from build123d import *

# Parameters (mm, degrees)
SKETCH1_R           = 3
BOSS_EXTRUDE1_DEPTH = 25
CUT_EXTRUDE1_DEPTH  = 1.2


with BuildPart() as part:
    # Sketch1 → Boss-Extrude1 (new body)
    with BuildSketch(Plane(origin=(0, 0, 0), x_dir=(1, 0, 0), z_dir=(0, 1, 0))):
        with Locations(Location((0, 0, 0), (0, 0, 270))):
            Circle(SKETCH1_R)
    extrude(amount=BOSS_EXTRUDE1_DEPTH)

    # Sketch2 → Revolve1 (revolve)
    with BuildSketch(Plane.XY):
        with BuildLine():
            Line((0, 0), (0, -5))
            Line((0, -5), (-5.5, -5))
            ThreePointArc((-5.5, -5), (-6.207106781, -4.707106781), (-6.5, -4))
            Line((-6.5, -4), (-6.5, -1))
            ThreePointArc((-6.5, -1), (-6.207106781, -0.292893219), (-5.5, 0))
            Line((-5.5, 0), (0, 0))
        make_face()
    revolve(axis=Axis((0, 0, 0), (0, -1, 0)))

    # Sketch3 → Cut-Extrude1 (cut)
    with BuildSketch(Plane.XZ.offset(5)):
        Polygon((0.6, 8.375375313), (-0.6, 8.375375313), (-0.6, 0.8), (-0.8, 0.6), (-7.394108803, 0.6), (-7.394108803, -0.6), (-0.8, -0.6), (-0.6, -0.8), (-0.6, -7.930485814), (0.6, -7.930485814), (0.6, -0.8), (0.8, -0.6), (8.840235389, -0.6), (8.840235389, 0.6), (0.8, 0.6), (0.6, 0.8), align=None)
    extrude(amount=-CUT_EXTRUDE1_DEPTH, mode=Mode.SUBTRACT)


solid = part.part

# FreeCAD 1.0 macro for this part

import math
import FreeCAD as App
import Part
import Sketcher

V = App.Vector

doc = App.newDocument("Part")
body = doc.addObject("PartDesign::Body", "Body")

sketch1 = doc.addObject("Sketcher::SketchObject", "Sketch")
body.addObject(sketch1)
sketch1.AttachmentSupport = (doc.XZ_Plane, [""])
sketch1.MapMode = "FlatFace"
sketch1.addGeometry(Part.Circle(V(0, 0, 0), V(0, 0, 1), 3), False)
sketch1.addConstraint([
    Sketcher.Constraint("Coincident", 0, 3, -1, 1),
    Sketcher.Constraint("Diameter", 0, 6.0),
])
pad1 = doc.addObject("PartDesign::Pad", "Pad")
body.addObject(pad1)
pad1.Profile = sketch1
pad1.Length = 25
pad1.Reversed = True

sketch2 = doc.addObject("Sketcher::SketchObject", "Sketch001")
body.addObject(sketch2)
sketch2.AttachmentSupport = (doc.XY_Plane, [""])
sketch2.MapMode = "FlatFace"
sketch2.addGeometry([
    Part.LineSegment(V(0, -5, 0), V(0, 0, 0)),
    Part.LineSegment(V(0, 0, 0), V(-5.5, 0, 0)),
    Part.ArcOfCircle(Part.Circle(V(-5.5, -1, 0), V(0, 0, 1), 1), math.radians(90), math.radians(180)),
    Part.LineSegment(V(-6.5, -1, 0), V(-6.5, -4, 0)),
    Part.ArcOfCircle(Part.Circle(V(-5.5, -4, 0), V(0, 0, 1), 1), math.radians(-180), math.radians(-90)),
    Part.LineSegment(V(-5.5, -5, 0), V(0, -5, 0)),
], False)
sketch2.addConstraint([
    Sketcher.Constraint("Coincident", 0, 2, 1, 1),
    Sketcher.Constraint("Tangent", 1, 2, 2, 1),
    Sketcher.Constraint("Tangent", 2, 2, 3, 1),
    Sketcher.Constraint("Tangent", 3, 2, 4, 1),
    Sketcher.Constraint("Tangent", 4, 2, 5, 1),
    Sketcher.Constraint("Coincident", 5, 2, 0, 1),
    Sketcher.Constraint("Vertical", 0),
    Sketcher.Constraint("Horizontal", 1),
    Sketcher.Constraint("Vertical", 3),
    Sketcher.Constraint("Horizontal", 5),
    Sketcher.Constraint("Coincident", 0, 2, -1, 1),
    Sketcher.Constraint("Equal", 2, 4),
    Sketcher.Constraint("Radius", 2, 1.0),
    Sketcher.Constraint("DistanceY", 0, 1, 0, 2, 5.0),
    Sketcher.Constraint("DistanceX", 1, 2, 1, 1, 5.5),
])
revolution = doc.addObject("PartDesign::Revolution", "Revolution")
body.addObject(revolution)
revolution.Profile = sketch2
revolution.ReferenceAxis = (sketch2, ["V_Axis"])
revolution.Angle = 360

sketch3 = doc.addObject("Sketcher::SketchObject", "Sketch002")
body.addObject(sketch3)
sketch3.AttachmentSupport = (doc.XZ_Plane, [""])
sketch3.MapMode = "FlatFace"
sketch3.AttachmentOffset = App.Placement(V(0, 0, 5), App.Rotation())
sketch3.addGeometry([
    Part.LineSegment(V(0.6, 8.375375, 0), V(-0.6, 8.375375, 0)),
    Part.LineSegment(V(-0.6, 8.375375, 0), V(-0.6, 0.8, 0)),
    Part.LineSegment(V(-0.6, 0.8, 0), V(-0.8, 0.6, 0)),
    Part.LineSegment(V(-0.8, 0.6, 0), V(-7.394109, 0.6, 0)),
    Part.LineSegment(V(-7.394109, 0.6, 0), V(-7.394109, -0.6, 0)),
    Part.LineSegment(V(-7.394109, -0.6, 0), V(-0.8, -0.6, 0)),
    Part.LineSegment(V(-0.8, -0.6, 0), V(-0.6, -0.8, 0)),
    Part.LineSegment(V(-0.6, -0.8, 0), V(-0.6, -7.930486, 0)),
    Part.LineSegment(V(-0.6, -7.930486, 0), V(0.6, -7.930486, 0)),
    Part.LineSegment(V(0.6, -7.930486, 0), V(0.6, -0.8, 0)),
    Part.LineSegment(V(0.6, -0.8, 0), V(0.8, -0.6, 0)),
    Part.LineSegment(V(0.8, -0.6, 0), V(8.840235, -0.6, 0)),
    Part.LineSegment(V(8.840235, -0.6, 0), V(8.840235, 0.6, 0)),
    Part.LineSegment(V(8.840235, 0.6, 0), V(0.8, 0.6, 0)),
    Part.LineSegment(V(0.8, 0.6, 0), V(0.6, 0.8, 0)),
    Part.LineSegment(V(0.6, 0.8, 0), V(0.6, 8.375375, 0)),
], False)
sketch3.addConstraint([
    Sketcher.Constraint("Coincident", 0, 2, 1, 1),
    Sketcher.Constraint("Coincident", 1, 2, 2, 1),
    Sketcher.Constraint("Coincident", 2, 2, 3, 1),
    Sketcher.Constraint("Coincident", 3, 2, 4, 1),
    Sketcher.Constraint("Coincident", 4, 2, 5, 1),
    Sketcher.Constraint("Coincident", 5, 2, 6, 1),
    Sketcher.Constraint("Coincident", 6, 2, 7, 1),
    Sketcher.Constraint("Coincident", 7, 2, 8, 1),
    Sketcher.Constraint("Coincident", 8, 2, 9, 1),
    Sketcher.Constraint("Coincident", 9, 2, 10, 1),
    Sketcher.Constraint("Coincident", 10, 2, 11, 1),
    Sketcher.Constraint("Coincident", 11, 2, 12, 1),
    Sketcher.Constraint("Coincident", 12, 2, 13, 1),
    Sketcher.Constraint("Coincident", 13, 2, 14, 1),
    Sketcher.Constraint("Coincident", 14, 2, 15, 1),
    Sketcher.Constraint("Coincident", 15, 2, 0, 1),
    Sketcher.Constraint("Horizontal", 0),
    Sketcher.Constraint("Vertical", 1),
    Sketcher.Constraint("Horizontal", 3),
    Sketcher.Constraint("Vertical", 4),
    Sketcher.Constraint("Horizontal", 5),
    Sketcher.Constraint("Vertical", 7),
    Sketcher.Constraint("Horizontal", 8),
    Sketcher.Constraint("Vertical", 9),
    Sketcher.Constraint("Horizontal", 11),
    Sketcher.Constraint("Vertical", 12),
    Sketcher.Constraint("Horizontal", 13),
    Sketcher.Constraint("Vertical", 15),
    Sketcher.Constraint("Symmetric", 1, 2, 9, 2, -1, 1),
    Sketcher.Constraint("Symmetric", 2, 2, 10, 2, -1, 1),
    Sketcher.Constraint("Symmetric", 5, 2, 13, 2, -1, 1),
    Sketcher.Constraint("Symmetric", 6, 2, 14, 2, -1, 1),
    Sketcher.Constraint("Symmetric", 6, 2, 9, 2, -2),
    Sketcher.Constraint("Symmetric", 5, 2, 10, 2, -2),
    Sketcher.Constraint("Perpendicular", 2, 6),
    Sketcher.Constraint("Equal", 8, 4),
    Sketcher.Constraint("DistanceX", 0, 2, 0, 1, 1.2),
    Sketcher.Constraint("DistanceY", -1, 1, 1, 2, 0.8),
    Sketcher.Constraint("DistanceX", 3, 2, 3, 1, 6.594109),
    Sketcher.Constraint("DistanceX", 11, 1, 11, 2, 8.040235),
    Sketcher.Constraint("DistanceY", 1, 2, 1, 1, 7.575375),
    Sketcher.Constraint("DistanceY", 7, 2, 7, 1, 7.130486),
])
pocket1 = doc.addObject("PartDesign::Pocket", "Pocket")
body.addObject(pocket1)
pocket1.Profile = sketch3
pocket1.Length = 1.2

doc.recompute()
